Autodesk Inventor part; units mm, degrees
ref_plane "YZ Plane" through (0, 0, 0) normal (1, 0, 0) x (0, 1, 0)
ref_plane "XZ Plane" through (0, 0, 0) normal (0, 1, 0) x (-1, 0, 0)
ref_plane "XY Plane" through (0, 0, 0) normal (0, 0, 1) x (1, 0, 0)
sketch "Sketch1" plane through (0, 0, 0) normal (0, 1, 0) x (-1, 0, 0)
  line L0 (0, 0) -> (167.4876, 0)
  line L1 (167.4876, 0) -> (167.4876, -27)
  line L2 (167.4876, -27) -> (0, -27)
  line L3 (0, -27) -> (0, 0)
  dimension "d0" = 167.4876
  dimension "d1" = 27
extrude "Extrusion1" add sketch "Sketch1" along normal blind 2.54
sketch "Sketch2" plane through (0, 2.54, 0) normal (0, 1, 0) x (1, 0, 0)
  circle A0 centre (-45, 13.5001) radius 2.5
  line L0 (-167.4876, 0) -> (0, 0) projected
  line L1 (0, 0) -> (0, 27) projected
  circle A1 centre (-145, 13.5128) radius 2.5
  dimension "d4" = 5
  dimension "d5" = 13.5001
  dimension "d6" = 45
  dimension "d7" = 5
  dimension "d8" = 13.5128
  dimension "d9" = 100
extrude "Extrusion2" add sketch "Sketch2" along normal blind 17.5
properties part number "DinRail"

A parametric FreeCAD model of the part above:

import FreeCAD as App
import Part
import Sketcher
Q = App.Units.Quantity


def add_polygon(sketch, points):
    """Adds a closed chain of lines whose ends are joined by coincident constraints."""
    first, n = sketch.GeometryCount, len(points)
    for a, b in zip(points, points[1:] + points[:1]):
        sketch.addGeometry(Part.LineSegment(App.Vector(*a, 0), App.Vector(*b, 0)), False)
    for i in range(n):
        sketch.addConstraint(Sketcher.Constraint("Coincident", first + i, 2, first + (i + 1) % n, 1))

doc = App.newDocument("Part")
body = doc.addObject("PartDesign::Body", "Body")

# Sketch on XZ plane
sketch1 = body.newObject("Sketcher::SketchObject", "Sketch")
sketch1.AttachmentSupport = (doc.getObject("XZ_Plane"), [""])
sketch1.MapMode = "FlatFace"
add_polygon(sketch1, [(-167, 0), (0, 0), (0, -27), (-167, -27)])  # lines 0-3
sketch1.addConstraint([
    Sketcher.Constraint("Horizontal", 0),
    Sketcher.Constraint("Vertical", 1),
    Sketcher.Constraint("Horizontal", 2),
    Sketcher.Constraint("Vertical", 3),
    Sketcher.Constraint("Coincident", 0, 2, -1, 1),
    Sketcher.Constraint("DistanceX", 0, 1, 0, 2, Q("6.594 in")),
    Sketcher.Constraint("DistanceY", 1, 2, 1, 1, Q("1.063 in")),
])
pad1 = body.newObject("PartDesign::Pad", "Pad")
pad1.Profile = sketch1
pad1.Length = Q("0.1 in")
pad1.Reversed = True

# Sketch on XZ plane
sketch2 = body.newObject("Sketcher::SketchObject", "Sketch001")
sketch2.AttachmentSupport = (doc.getObject("XZ_Plane"), [""])
sketch2.MapMode = "FlatFace"
sketch2.AttachmentOffset = App.Placement(App.Vector(0, 0, -0.1 * 25.4), App.Rotation())
sketch2.addGeometry([
    Part.Circle(App.Vector(-45, -13.5, 0), App.Vector(0, 0, 1), 2.5),
    Part.Circle(App.Vector(-145, -13.5, 0), App.Vector(0, 0, 1), 2.5),
], False)
sketch2.addConstraint([
    Sketcher.Constraint("Equal", 0, 1),
    Sketcher.Constraint("Diameter", 0, Q("5 mm")),
    Sketcher.Constraint("DistanceY", 1, 3, -1, 1, Q("0.532 in")),
    Sketcher.Constraint("DistanceX", 1, 3, 0, 3, Q("3.937 in")),
    Sketcher.Constraint("DistanceY", 0, 3, -1, 1, Q("0.5315 in")),
    Sketcher.Constraint("DistanceX", 0, 3, -1, 1, Q("45 mm")),
])
pad2 = body.newObject("PartDesign::Pad", "Pad001")
pad2.Profile = sketch2
pad2.Length = 17.5
pad2.Reversed = True

doc.recompute()
